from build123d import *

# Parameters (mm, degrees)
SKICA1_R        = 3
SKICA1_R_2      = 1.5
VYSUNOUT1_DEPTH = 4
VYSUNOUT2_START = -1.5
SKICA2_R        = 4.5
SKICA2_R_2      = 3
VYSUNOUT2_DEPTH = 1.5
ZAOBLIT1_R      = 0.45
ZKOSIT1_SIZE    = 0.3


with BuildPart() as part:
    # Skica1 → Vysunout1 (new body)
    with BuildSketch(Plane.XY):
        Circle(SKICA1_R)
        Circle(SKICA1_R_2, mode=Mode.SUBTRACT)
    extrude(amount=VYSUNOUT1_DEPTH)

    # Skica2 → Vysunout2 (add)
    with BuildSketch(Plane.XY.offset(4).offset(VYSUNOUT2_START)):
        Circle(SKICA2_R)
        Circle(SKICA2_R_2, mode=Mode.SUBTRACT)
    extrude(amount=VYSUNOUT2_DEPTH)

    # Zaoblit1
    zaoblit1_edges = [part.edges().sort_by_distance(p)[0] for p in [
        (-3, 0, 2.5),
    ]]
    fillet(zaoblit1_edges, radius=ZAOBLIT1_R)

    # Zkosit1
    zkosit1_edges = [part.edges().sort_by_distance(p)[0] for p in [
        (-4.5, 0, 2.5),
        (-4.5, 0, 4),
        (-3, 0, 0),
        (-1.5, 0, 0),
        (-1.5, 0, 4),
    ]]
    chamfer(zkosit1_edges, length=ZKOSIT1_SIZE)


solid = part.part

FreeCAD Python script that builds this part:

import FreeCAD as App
import Part
import Sketcher
Q = App.Units.Quantity


def edges_at(feature, points):
    """Names of the edges that pass closest to the given points."""
    edges = feature.Shape.Edges
    near = lambda p: min(range(len(edges)), key=lambda i: edges[i].distToShape(Part.Vertex(*p))[0])
    return sorted({f"Edge{near(p) + 1}" for p in points})

doc = App.newDocument("Part")
body = doc.addObject("PartDesign::Body", "Body")

sketch1 = body.newObject("Sketcher::SketchObject", "Sketch")
sketch1.AttachmentSupport = (doc.getObject("XY_Plane"), [""])
sketch1.MapMode = "FlatFace"
sketch1.addGeometry(Part.Circle(App.Vector(0, 0, 0), App.Vector(0, 0, 1), 3), False)
sketch1.addGeometry(Part.Circle(App.Vector(0, 0, 0), App.Vector(0, 0, 1), 1.5), False)
sketch1.addConstraint(Sketcher.Constraint("Coincident", 0, 3, -1, 1))
sketch1.addConstraint(Sketcher.Constraint("Coincident", 1, 3, -1, 1))
sketch1.addConstraint(Sketcher.Constraint("Diameter", 0, Q("6 mm")))
sketch1.addConstraint(Sketcher.Constraint("Diameter", 1, Q("3 mm")))
pad1 = body.newObject("PartDesign::Pad", "Pad")
pad1.Profile = sketch1
pad1.Length = 4

sketch2 = body.newObject("Sketcher::SketchObject", "Sketch001")
sketch2.AttachmentSupport = (doc.getObject("XY_Plane"), [""])
sketch2.MapMode = "FlatFace"
sketch2.AttachmentOffset = App.Placement(App.Vector(0, 0, 2.5), App.Rotation())
sketch2.addGeometry(Part.Circle(App.Vector(0, 0, 0), App.Vector(0, 0, 1), 4.5), False)
sketch2.addGeometry(Part.Circle(App.Vector(0, 0, 0), App.Vector(0, 0, 1), 3), False)
sketch2.addConstraint(Sketcher.Constraint("Coincident", 0, 3, -1, 1))
sketch2.addConstraint(Sketcher.Constraint("Coincident", 1, 3, -1, 1))
sketch2.addConstraint(Sketcher.Constraint("Diameter", 0, Q("9 mm")))
sketch2.addConstraint(Sketcher.Constraint("Diameter", 1, Q("6 mm")))
pad2 = body.newObject("PartDesign::Pad", "Pad001")
pad2.Profile = sketch2
pad2.Length = 1.5
doc.recompute()

fillet = body.newObject("PartDesign::Fillet", "Fillet")
fillet.Base = (pad2, edges_at(pad2, [(-3, 0, 2.5)]))
fillet.Radius = 0.45
doc.recompute()

chamfer = body.newObject("PartDesign::Chamfer", "Chamfer")
chamfer.Base = (fillet, edges_at(fillet, [
    (-4.5, 0, 2.5),
    (-4.5, 0, 4),
    (-3, 0, 0),
    (-1.5, 0, 0),
    (-1.5, 0, 4),
]))
chamfer.Size = 0.3

doc.recompute()
